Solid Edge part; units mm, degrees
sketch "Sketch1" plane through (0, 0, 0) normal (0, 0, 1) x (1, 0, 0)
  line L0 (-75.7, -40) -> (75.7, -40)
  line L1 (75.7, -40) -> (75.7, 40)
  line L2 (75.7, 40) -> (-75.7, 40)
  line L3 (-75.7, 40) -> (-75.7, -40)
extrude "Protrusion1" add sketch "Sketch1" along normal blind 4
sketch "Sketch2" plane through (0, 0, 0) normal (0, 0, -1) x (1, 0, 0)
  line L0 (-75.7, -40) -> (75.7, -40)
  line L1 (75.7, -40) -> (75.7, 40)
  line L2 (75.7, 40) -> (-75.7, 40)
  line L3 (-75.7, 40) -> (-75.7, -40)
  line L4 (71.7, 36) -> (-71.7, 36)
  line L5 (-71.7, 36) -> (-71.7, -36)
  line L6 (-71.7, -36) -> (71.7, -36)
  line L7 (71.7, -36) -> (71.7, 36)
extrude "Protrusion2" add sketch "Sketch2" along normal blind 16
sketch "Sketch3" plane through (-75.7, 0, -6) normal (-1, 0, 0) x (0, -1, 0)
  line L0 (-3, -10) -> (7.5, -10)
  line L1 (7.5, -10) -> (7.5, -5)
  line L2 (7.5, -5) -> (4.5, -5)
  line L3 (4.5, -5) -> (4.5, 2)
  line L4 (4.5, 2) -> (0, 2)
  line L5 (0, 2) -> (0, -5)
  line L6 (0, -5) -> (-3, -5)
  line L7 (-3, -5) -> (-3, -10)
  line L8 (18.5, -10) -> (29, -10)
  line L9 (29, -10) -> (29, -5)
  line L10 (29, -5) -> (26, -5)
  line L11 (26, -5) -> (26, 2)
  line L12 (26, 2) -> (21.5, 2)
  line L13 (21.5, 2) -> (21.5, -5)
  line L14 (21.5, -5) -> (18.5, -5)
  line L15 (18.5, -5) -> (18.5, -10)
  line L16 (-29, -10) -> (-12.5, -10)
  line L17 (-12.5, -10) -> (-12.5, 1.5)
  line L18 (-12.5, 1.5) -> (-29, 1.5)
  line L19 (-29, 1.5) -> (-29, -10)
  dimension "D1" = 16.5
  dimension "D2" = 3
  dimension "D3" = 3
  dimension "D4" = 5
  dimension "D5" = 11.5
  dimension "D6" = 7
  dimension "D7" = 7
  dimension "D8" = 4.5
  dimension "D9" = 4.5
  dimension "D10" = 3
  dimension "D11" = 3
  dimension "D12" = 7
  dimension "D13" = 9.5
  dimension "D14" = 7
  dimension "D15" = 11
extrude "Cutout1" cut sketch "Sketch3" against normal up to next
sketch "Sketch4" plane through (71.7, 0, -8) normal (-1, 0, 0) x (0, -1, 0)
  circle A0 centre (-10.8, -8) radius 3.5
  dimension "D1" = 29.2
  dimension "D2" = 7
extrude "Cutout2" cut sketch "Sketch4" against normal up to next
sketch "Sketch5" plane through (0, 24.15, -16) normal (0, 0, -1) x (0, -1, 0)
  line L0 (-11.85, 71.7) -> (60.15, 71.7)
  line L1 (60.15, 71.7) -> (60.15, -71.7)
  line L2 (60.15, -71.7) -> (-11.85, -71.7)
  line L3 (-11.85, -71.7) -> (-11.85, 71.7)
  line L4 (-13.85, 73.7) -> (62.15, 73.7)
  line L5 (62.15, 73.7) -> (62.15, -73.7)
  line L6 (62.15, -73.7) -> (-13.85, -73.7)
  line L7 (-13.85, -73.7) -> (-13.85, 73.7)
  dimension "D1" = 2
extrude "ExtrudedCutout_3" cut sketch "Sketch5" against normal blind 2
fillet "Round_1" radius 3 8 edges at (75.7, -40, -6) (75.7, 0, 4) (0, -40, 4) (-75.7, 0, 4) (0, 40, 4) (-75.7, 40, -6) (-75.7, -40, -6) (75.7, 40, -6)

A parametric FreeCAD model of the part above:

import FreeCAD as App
import Part
import Sketcher
Q = App.Units.Quantity


def edges_at(feature, points):
    """Names of the edges that pass closest to the given points."""
    edges = feature.Shape.Edges
    near = lambda p: min(range(len(edges)), key=lambda i: edges[i].distToShape(Part.Vertex(*p))[0])
    return sorted({f"Edge{near(p) + 1}" for p in points})

doc = App.newDocument("Part")
body = doc.addObject("PartDesign::Body", "Body")

# Sketch on XY plane
sketch1 = body.newObject("Sketcher::SketchObject", "Sketch")
sketch1.AttachmentSupport = (doc.getObject("XY_Plane"), [""])
sketch1.MapMode = "FlatFace"
sketch1.addGeometry(Part.LineSegment(App.Vector(-76, 40, 0), App.Vector(-76, -40, 0)), False)
sketch1.addGeometry(Part.LineSegment(App.Vector(-76, -40, 0), App.Vector(76, -40, 0)), False)
sketch1.addGeometry(Part.LineSegment(App.Vector(76, -40, 0), App.Vector(76, 40, 0)), False)
sketch1.addGeometry(Part.LineSegment(App.Vector(76, 40, 0), App.Vector(-76, 40, 0)), False)
sketch1.addConstraint(Sketcher.Constraint("Coincident", 0, 2, 1, 1))
sketch1.addConstraint(Sketcher.Constraint("Coincident", 1, 2, 2, 1))
sketch1.addConstraint(Sketcher.Constraint("Coincident", 2, 2, 3, 1))
sketch1.addConstraint(Sketcher.Constraint("Coincident", 3, 2, 0, 1))
sketch1.addConstraint(Sketcher.Constraint("Vertical", 0))
sketch1.addConstraint(Sketcher.Constraint("Horizontal", 1))
sketch1.addConstraint(Sketcher.Constraint("Vertical", 2))
sketch1.addConstraint(Sketcher.Constraint("Horizontal", 3))
sketch1.addConstraint(Sketcher.Constraint("Symmetric", 0, 2, 2, 2, -1, 1))
sketch1.addConstraint(Sketcher.Constraint("DistanceY", 0, 2, 0, 1, Q("80 mm")))
sketch1.addConstraint(Sketcher.Constraint("DistanceX", 1, 1, 1, 2, Q("151.4 mm")))
pad1 = body.newObject("PartDesign::Pad", "Pad")
pad1.Profile = sketch1
pad1.Length = 4

# Sketch on XY plane
sketch2 = body.newObject("Sketcher::SketchObject", "Sketch001")
sketch2.AttachmentSupport = (doc.getObject("XY_Plane"), [""])
sketch2.MapMode = "FlatFace"
sketch2.addGeometry(Part.LineSegment(App.Vector(-76, -40, 0), App.Vector(-76, 40, 0)), False)
sketch2.addGeometry(Part.LineSegment(App.Vector(-76, 40, 0), App.Vector(76, 40, 0)), False)
sketch2.addGeometry(Part.LineSegment(App.Vector(76, 40, 0), App.Vector(76, -40, 0)), False)
sketch2.addGeometry(Part.LineSegment(App.Vector(76, -40, 0), App.Vector(-76, -40, 0)), False)
sketch2.addGeometry(Part.LineSegment(App.Vector(-72, -36, 0), App.Vector(72, -36, 0)), False)
sketch2.addGeometry(Part.LineSegment(App.Vector(72, -36, 0), App.Vector(72, 36, 0)), False)
sketch2.addGeometry(Part.LineSegment(App.Vector(72, 36, 0), App.Vector(-72, 36, 0)), False)
sketch2.addGeometry(Part.LineSegment(App.Vector(-72, 36, 0), App.Vector(-72, -36, 0)), False)
sketch2.addConstraint(Sketcher.Constraint("Coincident", 0, 2, 1, 1))
sketch2.addConstraint(Sketcher.Constraint("Coincident", 1, 2, 2, 1))
sketch2.addConstraint(Sketcher.Constraint("Coincident", 2, 2, 3, 1))
sketch2.addConstraint(Sketcher.Constraint("Coincident", 3, 2, 0, 1))
sketch2.addConstraint(Sketcher.Constraint("Coincident", 4, 2, 5, 1))
sketch2.addConstraint(Sketcher.Constraint("Coincident", 5, 2, 6, 1))
sketch2.addConstraint(Sketcher.Constraint("Coincident", 6, 2, 7, 1))
sketch2.addConstraint(Sketcher.Constraint("Coincident", 7, 2, 4, 1))
sketch2.addConstraint(Sketcher.Constraint("Vertical", 0))
sketch2.addConstraint(Sketcher.Constraint("Horizontal", 1))
sketch2.addConstraint(Sketcher.Constraint("Vertical", 2))
sketch2.addConstraint(Sketcher.Constraint("Horizontal", 3))
sketch2.addConstraint(Sketcher.Constraint("Horizontal", 4))
sketch2.addConstraint(Sketcher.Constraint("Vertical", 5))
sketch2.addConstraint(Sketcher.Constraint("Horizontal", 6))
sketch2.addConstraint(Sketcher.Constraint("Vertical", 7))
sketch2.addConstraint(Sketcher.Constraint("Symmetric", 0, 2, 2, 2, -1, 1))
sketch2.addConstraint(Sketcher.Constraint("Symmetric", 4, 2, 6, 2, -1, 1))
sketch2.addConstraint(Sketcher.Constraint("DistanceY", 0, 1, 0, 2, Q("80 mm")))
sketch2.addConstraint(Sketcher.Constraint("DistanceY", 5, 1, 5, 2, Q("72 mm")))
sketch2.addConstraint(Sketcher.Constraint("DistanceX", 1, 1, 1, 2, Q("151.4 mm")))
sketch2.addConstraint(Sketcher.Constraint("DistanceX", 4, 1, 4, 2, Q("143.4 mm")))
pad2 = body.newObject("PartDesign::Pad", "Pad001")
pad2.Profile = sketch2
pad2.Length = 16
pad2.Reversed = True

# Sketch on YZ plane
sketch3 = body.newObject("Sketcher::SketchObject", "Sketch002")
sketch3.AttachmentSupport = (doc.getObject("YZ_Plane"), [""])
sketch3.MapMode = "FlatFace"
sketch3.AttachmentOffset = App.Placement(App.Vector(0, 0, -75.7), App.Rotation())
sketch3.addGeometry(Part.LineSegment(App.Vector(3, -11, 0), App.Vector(3, -16, 0)), False)
sketch3.addGeometry(Part.LineSegment(App.Vector(3, -16, 0), App.Vector(-7.5, -16, 0)), False)
sketch3.addGeometry(Part.LineSegment(App.Vector(-7.5, -16, 0), App.Vector(-7.5, -11, 0)), False)
sketch3.addGeometry(Part.LineSegment(App.Vector(-7.5, -11, 0), App.Vector(-4.5, -11, 0)), False)
sketch3.addGeometry(Part.LineSegment(App.Vector(-4.5, -11, 0), App.Vector(-4.5, -4, 0)), False)
sketch3.addGeometry(Part.LineSegment(App.Vector(-4.5, -4, 0), App.Vector(0, -4, 0)), False)
sketch3.addGeometry(Part.LineSegment(App.Vector(0, -4, 0), App.Vector(0, -11, 0)), False)
sketch3.addGeometry(Part.LineSegment(App.Vector(0, -11, 0), App.Vector(3, -11, 0)), False)
sketch3.addGeometry(Part.LineSegment(App.Vector(-18.5, -11, 0), App.Vector(-18.5, -16, 0)), False)
sketch3.addGeometry(Part.LineSegment(App.Vector(-18.5, -16, 0), App.Vector(-29, -16, 0)), False)
sketch3.addGeometry(Part.LineSegment(App.Vector(-29, -16, 0), App.Vector(-29, -11, 0)), False)
sketch3.addGeometry(Part.LineSegment(App.Vector(-29, -11, 0), App.Vector(-26, -11, 0)), False)
sketch3.addGeometry(Part.LineSegment(App.Vector(-26, -11, 0), App.Vector(-26, -4, 0)), False)
sketch3.addGeometry(Part.LineSegment(App.Vector(-26, -4, 0), App.Vector(-21.5, -4, 0)), False)
sketch3.addGeometry(Part.LineSegment(App.Vector(-21.5, -4, 0), App.Vector(-21.5, -11, 0)), False)
sketch3.addGeometry(Part.LineSegment(App.Vector(-21.5, -11, 0), App.Vector(-18.5, -11, 0)), False)
sketch3.addGeometry(Part.LineSegment(App.Vector(29, -4.5, 0), App.Vector(29, -16, 0)), False)
sketch3.addGeometry(Part.LineSegment(App.Vector(29, -16, 0), App.Vector(12.5, -16, 0)), False)
sketch3.addGeometry(Part.LineSegment(App.Vector(12.5, -16, 0), App.Vector(12.5, -4.5, 0)), False)
sketch3.addGeometry(Part.LineSegment(App.Vector(12.5, -4.5, 0), App.Vector(29, -4.5, 0)), False)
sketch3.addConstraint(Sketcher.Constraint("Coincident", 0, 2, 1, 1))
sketch3.addConstraint(Sketcher.Constraint("Coincident", 1, 2, 2, 1))
sketch3.addConstraint(Sketcher.Constraint("Coincident", 2, 2, 3, 1))
sketch3.addConstraint(Sketcher.Constraint("Coincident", 3, 2, 4, 1))
sketch3.addConstraint(Sketcher.Constraint("Coincident", 4, 2, 5, 1))
sketch3.addConstraint(Sketcher.Constraint("Coincident", 5, 2, 6, 1))
sketch3.addConstraint(Sketcher.Constraint("Coincident", 6, 2, 7, 1))
sketch3.addConstraint(Sketcher.Constraint("Coincident", 7, 2, 0, 1))
sketch3.addConstraint(Sketcher.Constraint("Coincident", 8, 2, 9, 1))
sketch3.addConstraint(Sketcher.Constraint("Coincident", 9, 2, 10, 1))
sketch3.addConstraint(Sketcher.Constraint("Coincident", 10, 2, 11, 1))
sketch3.addConstraint(Sketcher.Constraint("Coincident", 11, 2, 12, 1))
sketch3.addConstraint(Sketcher.Constraint("Coincident", 12, 2, 13, 1))
sketch3.addConstraint(Sketcher.Constraint("Coincident", 13, 2, 14, 1))
sketch3.addConstraint(Sketcher.Constraint("Coincident", 14, 2, 15, 1))
sketch3.addConstraint(Sketcher.Constraint("Coincident", 15, 2, 8, 1))
sketch3.addConstraint(Sketcher.Constraint("Coincident", 16, 2, 17, 1))
sketch3.addConstraint(Sketcher.Constraint("Coincident", 17, 2, 18, 1))
sketch3.addConstraint(Sketcher.Constraint("Coincident", 18, 2, 19, 1))
sketch3.addConstraint(Sketcher.Constraint("Coincident", 19, 2, 16, 1))
sketch3.addConstraint(Sketcher.Constraint("Vertical", 0))
sketch3.addConstraint(Sketcher.Constraint("Horizontal", 1))
sketch3.addConstraint(Sketcher.Constraint("Vertical", 2))
sketch3.addConstraint(Sketcher.Constraint("Horizontal", 3))
sketch3.addConstraint(Sketcher.Constraint("Vertical", 4))
sketch3.addConstraint(Sketcher.Constraint("Horizontal", 5))
sketch3.addConstraint(Sketcher.Constraint("Vertical", 6))
sketch3.addConstraint(Sketcher.Constraint("Horizontal", 7))
sketch3.addConstraint(Sketcher.Constraint("Vertical", 8))
sketch3.addConstraint(Sketcher.Constraint("Horizontal", 9))
sketch3.addConstraint(Sketcher.Constraint("Vertical", 10))
sketch3.addConstraint(Sketcher.Constraint("Horizontal", 11))
sketch3.addConstraint(Sketcher.Constraint("Vertical", 12))
sketch3.addConstraint(Sketcher.Constraint("Horizontal", 13))
sketch3.addConstraint(Sketcher.Constraint("Vertical", 14))
sketch3.addConstraint(Sketcher.Constraint("Horizontal", 15))
sketch3.addConstraint(Sketcher.Constraint("Vertical", 16))
sketch3.addConstraint(Sketcher.Constraint("Horizontal", 17))
sketch3.addConstraint(Sketcher.Constraint("Vertical", 18))
sketch3.addConstraint(Sketcher.Constraint("Horizontal", 19))
sketch3.addConstraint(Sketcher.Constraint("Symmetric", 9, 2, 16, 2, -2))
sketch3.addConstraint(Sketcher.Constraint("PointOnObject", 5, 2, -2))
sketch3.addConstraint(Sketcher.Constraint("Horizontal", 3, 2, 6, 2))
sketch3.addConstraint(Sketcher.Constraint("Horizontal", 1, 2, 8, 2))
sketch3.addConstraint(Sketcher.Constraint("Horizontal", 7, 2, 10, 2))
sketch3.addConstraint(Sketcher.Constraint("Horizontal", 5, 2, 12, 2))
sketch3.addConstraint(Sketcher.Constraint("Horizontal", 11, 2, 14, 2))
sketch3.addConstraint(Sketcher.Constraint("Equal", 3, 7))
sketch3.addConstraint(Sketcher.Constraint("Equal", 1, 9))
sketch3.addConstraint(Sketcher.Constraint("Equal", 7, 11))
sketch3.addConstraint(Sketcher.Constraint("Equal", 5, 13))
sketch3.addConstraint(Sketcher.Constraint("DistanceX", 5, 1, 5, 2, Q("4.5 mm")))
sketch3.addConstraint(Sketcher.Constraint("DistanceX", 11, 2, -1, 1, Q("26 mm")))
sketch3.addConstraint(Sketcher.Constraint("DistanceX", 1, 2, -1, 1, Q("7.5 mm")))
sketch3.addConstraint(Sketcher.Constraint("DistanceX", -1, 1, 17, 2, Q("12.5 mm")))
sketch3.addConstraint(Sketcher.Constraint("DistanceY", 18, 2, -1, 1, Q("4.5 mm")))
sketch3.addConstraint(Sketcher.Constraint("DistanceY", 0, 2, 0, 1, Q("5 mm")))
sketch3.addConstraint(Sketcher.Constraint("DistanceY", 4, 1, 4, 2, Q("7 mm")))
sketch3.addConstraint(Sketcher.Constraint("DistanceY", 16, 2, 16, 1, Q("11.5 mm")))
pocket1 = body.newObject("PartDesign::Pocket", "Pocket")
pocket1.Profile = sketch3
pocket1.Type = "UpToFirst"
pocket1.Reversed = True

# Sketch on YZ plane
sketch4 = body.newObject("Sketcher::SketchObject", "Sketch003")
sketch4.AttachmentSupport = (doc.getObject("YZ_Plane"), [""])
sketch4.MapMode = "FlatFace"
sketch4.AttachmentOffset = App.Placement(App.Vector(0, 0, 71.7), App.Rotation())
sketch4.addGeometry(Part.Circle(App.Vector(10.8, -16, 0), App.Vector(0, 0, 1), 3.5), False)
sketch4.addConstraint(Sketcher.Constraint("Diameter", 0, Q("7 mm")))
sketch4.addConstraint(Sketcher.Constraint("DistanceX", -1, 1, 0, 3, Q("10.8 mm")))
sketch4.addConstraint(Sketcher.Constraint("DistanceY", 0, 3, -1, 1, Q("16 mm")))
pocket2 = body.newObject("PartDesign::Pocket", "Pocket001")
pocket2.Profile = sketch4
pocket2.Type = "UpToFirst"
pocket2.Reversed = True

# Sketch on XY plane
sketch5 = body.newObject("Sketcher::SketchObject", "Sketch004")
sketch5.AttachmentSupport = (doc.getObject("XY_Plane"), [""])
sketch5.MapMode = "FlatFace"
sketch5.AttachmentOffset = App.Placement(App.Vector(0, 0, -16), App.Rotation())
sketch5.addGeometry(Part.LineSegment(App.Vector(-74, -38, 0), App.Vector(-74, 38, 0)), False)
sketch5.addGeometry(Part.LineSegment(App.Vector(-74, 38, 0), App.Vector(74, 38, 0)), False)
sketch5.addGeometry(Part.LineSegment(App.Vector(74, 38, 0), App.Vector(74, -38, 0)), False)
sketch5.addGeometry(Part.LineSegment(App.Vector(74, -38, 0), App.Vector(-74, -38, 0)), False)
sketch5.addGeometry(Part.LineSegment(App.Vector(72, 36, 0), App.Vector(-72, 36, 0)), False)
sketch5.addGeometry(Part.LineSegment(App.Vector(-72, 36, 0), App.Vector(-72, -36, 0)), False)
sketch5.addGeometry(Part.LineSegment(App.Vector(-72, -36, 0), App.Vector(72, -36, 0)), False)
sketch5.addGeometry(Part.LineSegment(App.Vector(72, -36, 0), App.Vector(72, 36, 0)), False)
sketch5.addConstraint(Sketcher.Constraint("Coincident", 0, 2, 1, 1))
sketch5.addConstraint(Sketcher.Constraint("Coincident", 1, 2, 2, 1))
sketch5.addConstraint(Sketcher.Constraint("Coincident", 2, 2, 3, 1))
sketch5.addConstraint(Sketcher.Constraint("Coincident", 3, 2, 0, 1))
sketch5.addConstraint(Sketcher.Constraint("Coincident", 4, 2, 5, 1))
sketch5.addConstraint(Sketcher.Constraint("Coincident", 5, 2, 6, 1))
sketch5.addConstraint(Sketcher.Constraint("Coincident", 6, 2, 7, 1))
sketch5.addConstraint(Sketcher.Constraint("Coincident", 7, 2, 4, 1))
sketch5.addConstraint(Sketcher.Constraint("Vertical", 0))
sketch5.addConstraint(Sketcher.Constraint("Horizontal", 1))
sketch5.addConstraint(Sketcher.Constraint("Vertical", 2))
sketch5.addConstraint(Sketcher.Constraint("Horizontal", 3))
sketch5.addConstraint(Sketcher.Constraint("Horizontal", 4))
sketch5.addConstraint(Sketcher.Constraint("Vertical", 5))
sketch5.addConstraint(Sketcher.Constraint("Horizontal", 6))
sketch5.addConstraint(Sketcher.Constraint("Vertical", 7))
sketch5.addConstraint(Sketcher.Constraint("Symmetric", 0, 2, 2, 2, -1, 1))
sketch5.addConstraint(Sketcher.Constraint("Symmetric", 4, 2, 6, 2, -1, 1))
sketch5.addConstraint(Sketcher.Constraint("DistanceY", 0, 1, 0, 2, Q("76 mm")))
sketch5.addConstraint(Sketcher.Constraint("DistanceY", 5, 2, 5, 1, Q("72 mm")))
sketch5.addConstraint(Sketcher.Constraint("DistanceX", 1, 1, 1, 2, Q("147.4 mm")))
sketch5.addConstraint(Sketcher.Constraint("DistanceX", 4, 2, 4, 1, Q("143.4 mm")))
pocket3 = body.newObject("PartDesign::Pocket", "Pocket002")
pocket3.Profile = sketch5
pocket3.Length = 2
pocket3.Reversed = True
doc.recompute()

fillet = body.newObject("PartDesign::Fillet", "Fillet")
fillet.Base = (pocket3, edges_at(pocket3, [
    (75.7, -40, -6),
    (75.7, 0, 4),
    (0, -40, 4),
    (-75.7, 0, 4),
    (0, 40, 4),
    (-75.7, 40, -6),
    (-75.7, -40, -6),
    (75.7, 40, -6),
]))
fillet.Radius = 3

doc.recompute()
